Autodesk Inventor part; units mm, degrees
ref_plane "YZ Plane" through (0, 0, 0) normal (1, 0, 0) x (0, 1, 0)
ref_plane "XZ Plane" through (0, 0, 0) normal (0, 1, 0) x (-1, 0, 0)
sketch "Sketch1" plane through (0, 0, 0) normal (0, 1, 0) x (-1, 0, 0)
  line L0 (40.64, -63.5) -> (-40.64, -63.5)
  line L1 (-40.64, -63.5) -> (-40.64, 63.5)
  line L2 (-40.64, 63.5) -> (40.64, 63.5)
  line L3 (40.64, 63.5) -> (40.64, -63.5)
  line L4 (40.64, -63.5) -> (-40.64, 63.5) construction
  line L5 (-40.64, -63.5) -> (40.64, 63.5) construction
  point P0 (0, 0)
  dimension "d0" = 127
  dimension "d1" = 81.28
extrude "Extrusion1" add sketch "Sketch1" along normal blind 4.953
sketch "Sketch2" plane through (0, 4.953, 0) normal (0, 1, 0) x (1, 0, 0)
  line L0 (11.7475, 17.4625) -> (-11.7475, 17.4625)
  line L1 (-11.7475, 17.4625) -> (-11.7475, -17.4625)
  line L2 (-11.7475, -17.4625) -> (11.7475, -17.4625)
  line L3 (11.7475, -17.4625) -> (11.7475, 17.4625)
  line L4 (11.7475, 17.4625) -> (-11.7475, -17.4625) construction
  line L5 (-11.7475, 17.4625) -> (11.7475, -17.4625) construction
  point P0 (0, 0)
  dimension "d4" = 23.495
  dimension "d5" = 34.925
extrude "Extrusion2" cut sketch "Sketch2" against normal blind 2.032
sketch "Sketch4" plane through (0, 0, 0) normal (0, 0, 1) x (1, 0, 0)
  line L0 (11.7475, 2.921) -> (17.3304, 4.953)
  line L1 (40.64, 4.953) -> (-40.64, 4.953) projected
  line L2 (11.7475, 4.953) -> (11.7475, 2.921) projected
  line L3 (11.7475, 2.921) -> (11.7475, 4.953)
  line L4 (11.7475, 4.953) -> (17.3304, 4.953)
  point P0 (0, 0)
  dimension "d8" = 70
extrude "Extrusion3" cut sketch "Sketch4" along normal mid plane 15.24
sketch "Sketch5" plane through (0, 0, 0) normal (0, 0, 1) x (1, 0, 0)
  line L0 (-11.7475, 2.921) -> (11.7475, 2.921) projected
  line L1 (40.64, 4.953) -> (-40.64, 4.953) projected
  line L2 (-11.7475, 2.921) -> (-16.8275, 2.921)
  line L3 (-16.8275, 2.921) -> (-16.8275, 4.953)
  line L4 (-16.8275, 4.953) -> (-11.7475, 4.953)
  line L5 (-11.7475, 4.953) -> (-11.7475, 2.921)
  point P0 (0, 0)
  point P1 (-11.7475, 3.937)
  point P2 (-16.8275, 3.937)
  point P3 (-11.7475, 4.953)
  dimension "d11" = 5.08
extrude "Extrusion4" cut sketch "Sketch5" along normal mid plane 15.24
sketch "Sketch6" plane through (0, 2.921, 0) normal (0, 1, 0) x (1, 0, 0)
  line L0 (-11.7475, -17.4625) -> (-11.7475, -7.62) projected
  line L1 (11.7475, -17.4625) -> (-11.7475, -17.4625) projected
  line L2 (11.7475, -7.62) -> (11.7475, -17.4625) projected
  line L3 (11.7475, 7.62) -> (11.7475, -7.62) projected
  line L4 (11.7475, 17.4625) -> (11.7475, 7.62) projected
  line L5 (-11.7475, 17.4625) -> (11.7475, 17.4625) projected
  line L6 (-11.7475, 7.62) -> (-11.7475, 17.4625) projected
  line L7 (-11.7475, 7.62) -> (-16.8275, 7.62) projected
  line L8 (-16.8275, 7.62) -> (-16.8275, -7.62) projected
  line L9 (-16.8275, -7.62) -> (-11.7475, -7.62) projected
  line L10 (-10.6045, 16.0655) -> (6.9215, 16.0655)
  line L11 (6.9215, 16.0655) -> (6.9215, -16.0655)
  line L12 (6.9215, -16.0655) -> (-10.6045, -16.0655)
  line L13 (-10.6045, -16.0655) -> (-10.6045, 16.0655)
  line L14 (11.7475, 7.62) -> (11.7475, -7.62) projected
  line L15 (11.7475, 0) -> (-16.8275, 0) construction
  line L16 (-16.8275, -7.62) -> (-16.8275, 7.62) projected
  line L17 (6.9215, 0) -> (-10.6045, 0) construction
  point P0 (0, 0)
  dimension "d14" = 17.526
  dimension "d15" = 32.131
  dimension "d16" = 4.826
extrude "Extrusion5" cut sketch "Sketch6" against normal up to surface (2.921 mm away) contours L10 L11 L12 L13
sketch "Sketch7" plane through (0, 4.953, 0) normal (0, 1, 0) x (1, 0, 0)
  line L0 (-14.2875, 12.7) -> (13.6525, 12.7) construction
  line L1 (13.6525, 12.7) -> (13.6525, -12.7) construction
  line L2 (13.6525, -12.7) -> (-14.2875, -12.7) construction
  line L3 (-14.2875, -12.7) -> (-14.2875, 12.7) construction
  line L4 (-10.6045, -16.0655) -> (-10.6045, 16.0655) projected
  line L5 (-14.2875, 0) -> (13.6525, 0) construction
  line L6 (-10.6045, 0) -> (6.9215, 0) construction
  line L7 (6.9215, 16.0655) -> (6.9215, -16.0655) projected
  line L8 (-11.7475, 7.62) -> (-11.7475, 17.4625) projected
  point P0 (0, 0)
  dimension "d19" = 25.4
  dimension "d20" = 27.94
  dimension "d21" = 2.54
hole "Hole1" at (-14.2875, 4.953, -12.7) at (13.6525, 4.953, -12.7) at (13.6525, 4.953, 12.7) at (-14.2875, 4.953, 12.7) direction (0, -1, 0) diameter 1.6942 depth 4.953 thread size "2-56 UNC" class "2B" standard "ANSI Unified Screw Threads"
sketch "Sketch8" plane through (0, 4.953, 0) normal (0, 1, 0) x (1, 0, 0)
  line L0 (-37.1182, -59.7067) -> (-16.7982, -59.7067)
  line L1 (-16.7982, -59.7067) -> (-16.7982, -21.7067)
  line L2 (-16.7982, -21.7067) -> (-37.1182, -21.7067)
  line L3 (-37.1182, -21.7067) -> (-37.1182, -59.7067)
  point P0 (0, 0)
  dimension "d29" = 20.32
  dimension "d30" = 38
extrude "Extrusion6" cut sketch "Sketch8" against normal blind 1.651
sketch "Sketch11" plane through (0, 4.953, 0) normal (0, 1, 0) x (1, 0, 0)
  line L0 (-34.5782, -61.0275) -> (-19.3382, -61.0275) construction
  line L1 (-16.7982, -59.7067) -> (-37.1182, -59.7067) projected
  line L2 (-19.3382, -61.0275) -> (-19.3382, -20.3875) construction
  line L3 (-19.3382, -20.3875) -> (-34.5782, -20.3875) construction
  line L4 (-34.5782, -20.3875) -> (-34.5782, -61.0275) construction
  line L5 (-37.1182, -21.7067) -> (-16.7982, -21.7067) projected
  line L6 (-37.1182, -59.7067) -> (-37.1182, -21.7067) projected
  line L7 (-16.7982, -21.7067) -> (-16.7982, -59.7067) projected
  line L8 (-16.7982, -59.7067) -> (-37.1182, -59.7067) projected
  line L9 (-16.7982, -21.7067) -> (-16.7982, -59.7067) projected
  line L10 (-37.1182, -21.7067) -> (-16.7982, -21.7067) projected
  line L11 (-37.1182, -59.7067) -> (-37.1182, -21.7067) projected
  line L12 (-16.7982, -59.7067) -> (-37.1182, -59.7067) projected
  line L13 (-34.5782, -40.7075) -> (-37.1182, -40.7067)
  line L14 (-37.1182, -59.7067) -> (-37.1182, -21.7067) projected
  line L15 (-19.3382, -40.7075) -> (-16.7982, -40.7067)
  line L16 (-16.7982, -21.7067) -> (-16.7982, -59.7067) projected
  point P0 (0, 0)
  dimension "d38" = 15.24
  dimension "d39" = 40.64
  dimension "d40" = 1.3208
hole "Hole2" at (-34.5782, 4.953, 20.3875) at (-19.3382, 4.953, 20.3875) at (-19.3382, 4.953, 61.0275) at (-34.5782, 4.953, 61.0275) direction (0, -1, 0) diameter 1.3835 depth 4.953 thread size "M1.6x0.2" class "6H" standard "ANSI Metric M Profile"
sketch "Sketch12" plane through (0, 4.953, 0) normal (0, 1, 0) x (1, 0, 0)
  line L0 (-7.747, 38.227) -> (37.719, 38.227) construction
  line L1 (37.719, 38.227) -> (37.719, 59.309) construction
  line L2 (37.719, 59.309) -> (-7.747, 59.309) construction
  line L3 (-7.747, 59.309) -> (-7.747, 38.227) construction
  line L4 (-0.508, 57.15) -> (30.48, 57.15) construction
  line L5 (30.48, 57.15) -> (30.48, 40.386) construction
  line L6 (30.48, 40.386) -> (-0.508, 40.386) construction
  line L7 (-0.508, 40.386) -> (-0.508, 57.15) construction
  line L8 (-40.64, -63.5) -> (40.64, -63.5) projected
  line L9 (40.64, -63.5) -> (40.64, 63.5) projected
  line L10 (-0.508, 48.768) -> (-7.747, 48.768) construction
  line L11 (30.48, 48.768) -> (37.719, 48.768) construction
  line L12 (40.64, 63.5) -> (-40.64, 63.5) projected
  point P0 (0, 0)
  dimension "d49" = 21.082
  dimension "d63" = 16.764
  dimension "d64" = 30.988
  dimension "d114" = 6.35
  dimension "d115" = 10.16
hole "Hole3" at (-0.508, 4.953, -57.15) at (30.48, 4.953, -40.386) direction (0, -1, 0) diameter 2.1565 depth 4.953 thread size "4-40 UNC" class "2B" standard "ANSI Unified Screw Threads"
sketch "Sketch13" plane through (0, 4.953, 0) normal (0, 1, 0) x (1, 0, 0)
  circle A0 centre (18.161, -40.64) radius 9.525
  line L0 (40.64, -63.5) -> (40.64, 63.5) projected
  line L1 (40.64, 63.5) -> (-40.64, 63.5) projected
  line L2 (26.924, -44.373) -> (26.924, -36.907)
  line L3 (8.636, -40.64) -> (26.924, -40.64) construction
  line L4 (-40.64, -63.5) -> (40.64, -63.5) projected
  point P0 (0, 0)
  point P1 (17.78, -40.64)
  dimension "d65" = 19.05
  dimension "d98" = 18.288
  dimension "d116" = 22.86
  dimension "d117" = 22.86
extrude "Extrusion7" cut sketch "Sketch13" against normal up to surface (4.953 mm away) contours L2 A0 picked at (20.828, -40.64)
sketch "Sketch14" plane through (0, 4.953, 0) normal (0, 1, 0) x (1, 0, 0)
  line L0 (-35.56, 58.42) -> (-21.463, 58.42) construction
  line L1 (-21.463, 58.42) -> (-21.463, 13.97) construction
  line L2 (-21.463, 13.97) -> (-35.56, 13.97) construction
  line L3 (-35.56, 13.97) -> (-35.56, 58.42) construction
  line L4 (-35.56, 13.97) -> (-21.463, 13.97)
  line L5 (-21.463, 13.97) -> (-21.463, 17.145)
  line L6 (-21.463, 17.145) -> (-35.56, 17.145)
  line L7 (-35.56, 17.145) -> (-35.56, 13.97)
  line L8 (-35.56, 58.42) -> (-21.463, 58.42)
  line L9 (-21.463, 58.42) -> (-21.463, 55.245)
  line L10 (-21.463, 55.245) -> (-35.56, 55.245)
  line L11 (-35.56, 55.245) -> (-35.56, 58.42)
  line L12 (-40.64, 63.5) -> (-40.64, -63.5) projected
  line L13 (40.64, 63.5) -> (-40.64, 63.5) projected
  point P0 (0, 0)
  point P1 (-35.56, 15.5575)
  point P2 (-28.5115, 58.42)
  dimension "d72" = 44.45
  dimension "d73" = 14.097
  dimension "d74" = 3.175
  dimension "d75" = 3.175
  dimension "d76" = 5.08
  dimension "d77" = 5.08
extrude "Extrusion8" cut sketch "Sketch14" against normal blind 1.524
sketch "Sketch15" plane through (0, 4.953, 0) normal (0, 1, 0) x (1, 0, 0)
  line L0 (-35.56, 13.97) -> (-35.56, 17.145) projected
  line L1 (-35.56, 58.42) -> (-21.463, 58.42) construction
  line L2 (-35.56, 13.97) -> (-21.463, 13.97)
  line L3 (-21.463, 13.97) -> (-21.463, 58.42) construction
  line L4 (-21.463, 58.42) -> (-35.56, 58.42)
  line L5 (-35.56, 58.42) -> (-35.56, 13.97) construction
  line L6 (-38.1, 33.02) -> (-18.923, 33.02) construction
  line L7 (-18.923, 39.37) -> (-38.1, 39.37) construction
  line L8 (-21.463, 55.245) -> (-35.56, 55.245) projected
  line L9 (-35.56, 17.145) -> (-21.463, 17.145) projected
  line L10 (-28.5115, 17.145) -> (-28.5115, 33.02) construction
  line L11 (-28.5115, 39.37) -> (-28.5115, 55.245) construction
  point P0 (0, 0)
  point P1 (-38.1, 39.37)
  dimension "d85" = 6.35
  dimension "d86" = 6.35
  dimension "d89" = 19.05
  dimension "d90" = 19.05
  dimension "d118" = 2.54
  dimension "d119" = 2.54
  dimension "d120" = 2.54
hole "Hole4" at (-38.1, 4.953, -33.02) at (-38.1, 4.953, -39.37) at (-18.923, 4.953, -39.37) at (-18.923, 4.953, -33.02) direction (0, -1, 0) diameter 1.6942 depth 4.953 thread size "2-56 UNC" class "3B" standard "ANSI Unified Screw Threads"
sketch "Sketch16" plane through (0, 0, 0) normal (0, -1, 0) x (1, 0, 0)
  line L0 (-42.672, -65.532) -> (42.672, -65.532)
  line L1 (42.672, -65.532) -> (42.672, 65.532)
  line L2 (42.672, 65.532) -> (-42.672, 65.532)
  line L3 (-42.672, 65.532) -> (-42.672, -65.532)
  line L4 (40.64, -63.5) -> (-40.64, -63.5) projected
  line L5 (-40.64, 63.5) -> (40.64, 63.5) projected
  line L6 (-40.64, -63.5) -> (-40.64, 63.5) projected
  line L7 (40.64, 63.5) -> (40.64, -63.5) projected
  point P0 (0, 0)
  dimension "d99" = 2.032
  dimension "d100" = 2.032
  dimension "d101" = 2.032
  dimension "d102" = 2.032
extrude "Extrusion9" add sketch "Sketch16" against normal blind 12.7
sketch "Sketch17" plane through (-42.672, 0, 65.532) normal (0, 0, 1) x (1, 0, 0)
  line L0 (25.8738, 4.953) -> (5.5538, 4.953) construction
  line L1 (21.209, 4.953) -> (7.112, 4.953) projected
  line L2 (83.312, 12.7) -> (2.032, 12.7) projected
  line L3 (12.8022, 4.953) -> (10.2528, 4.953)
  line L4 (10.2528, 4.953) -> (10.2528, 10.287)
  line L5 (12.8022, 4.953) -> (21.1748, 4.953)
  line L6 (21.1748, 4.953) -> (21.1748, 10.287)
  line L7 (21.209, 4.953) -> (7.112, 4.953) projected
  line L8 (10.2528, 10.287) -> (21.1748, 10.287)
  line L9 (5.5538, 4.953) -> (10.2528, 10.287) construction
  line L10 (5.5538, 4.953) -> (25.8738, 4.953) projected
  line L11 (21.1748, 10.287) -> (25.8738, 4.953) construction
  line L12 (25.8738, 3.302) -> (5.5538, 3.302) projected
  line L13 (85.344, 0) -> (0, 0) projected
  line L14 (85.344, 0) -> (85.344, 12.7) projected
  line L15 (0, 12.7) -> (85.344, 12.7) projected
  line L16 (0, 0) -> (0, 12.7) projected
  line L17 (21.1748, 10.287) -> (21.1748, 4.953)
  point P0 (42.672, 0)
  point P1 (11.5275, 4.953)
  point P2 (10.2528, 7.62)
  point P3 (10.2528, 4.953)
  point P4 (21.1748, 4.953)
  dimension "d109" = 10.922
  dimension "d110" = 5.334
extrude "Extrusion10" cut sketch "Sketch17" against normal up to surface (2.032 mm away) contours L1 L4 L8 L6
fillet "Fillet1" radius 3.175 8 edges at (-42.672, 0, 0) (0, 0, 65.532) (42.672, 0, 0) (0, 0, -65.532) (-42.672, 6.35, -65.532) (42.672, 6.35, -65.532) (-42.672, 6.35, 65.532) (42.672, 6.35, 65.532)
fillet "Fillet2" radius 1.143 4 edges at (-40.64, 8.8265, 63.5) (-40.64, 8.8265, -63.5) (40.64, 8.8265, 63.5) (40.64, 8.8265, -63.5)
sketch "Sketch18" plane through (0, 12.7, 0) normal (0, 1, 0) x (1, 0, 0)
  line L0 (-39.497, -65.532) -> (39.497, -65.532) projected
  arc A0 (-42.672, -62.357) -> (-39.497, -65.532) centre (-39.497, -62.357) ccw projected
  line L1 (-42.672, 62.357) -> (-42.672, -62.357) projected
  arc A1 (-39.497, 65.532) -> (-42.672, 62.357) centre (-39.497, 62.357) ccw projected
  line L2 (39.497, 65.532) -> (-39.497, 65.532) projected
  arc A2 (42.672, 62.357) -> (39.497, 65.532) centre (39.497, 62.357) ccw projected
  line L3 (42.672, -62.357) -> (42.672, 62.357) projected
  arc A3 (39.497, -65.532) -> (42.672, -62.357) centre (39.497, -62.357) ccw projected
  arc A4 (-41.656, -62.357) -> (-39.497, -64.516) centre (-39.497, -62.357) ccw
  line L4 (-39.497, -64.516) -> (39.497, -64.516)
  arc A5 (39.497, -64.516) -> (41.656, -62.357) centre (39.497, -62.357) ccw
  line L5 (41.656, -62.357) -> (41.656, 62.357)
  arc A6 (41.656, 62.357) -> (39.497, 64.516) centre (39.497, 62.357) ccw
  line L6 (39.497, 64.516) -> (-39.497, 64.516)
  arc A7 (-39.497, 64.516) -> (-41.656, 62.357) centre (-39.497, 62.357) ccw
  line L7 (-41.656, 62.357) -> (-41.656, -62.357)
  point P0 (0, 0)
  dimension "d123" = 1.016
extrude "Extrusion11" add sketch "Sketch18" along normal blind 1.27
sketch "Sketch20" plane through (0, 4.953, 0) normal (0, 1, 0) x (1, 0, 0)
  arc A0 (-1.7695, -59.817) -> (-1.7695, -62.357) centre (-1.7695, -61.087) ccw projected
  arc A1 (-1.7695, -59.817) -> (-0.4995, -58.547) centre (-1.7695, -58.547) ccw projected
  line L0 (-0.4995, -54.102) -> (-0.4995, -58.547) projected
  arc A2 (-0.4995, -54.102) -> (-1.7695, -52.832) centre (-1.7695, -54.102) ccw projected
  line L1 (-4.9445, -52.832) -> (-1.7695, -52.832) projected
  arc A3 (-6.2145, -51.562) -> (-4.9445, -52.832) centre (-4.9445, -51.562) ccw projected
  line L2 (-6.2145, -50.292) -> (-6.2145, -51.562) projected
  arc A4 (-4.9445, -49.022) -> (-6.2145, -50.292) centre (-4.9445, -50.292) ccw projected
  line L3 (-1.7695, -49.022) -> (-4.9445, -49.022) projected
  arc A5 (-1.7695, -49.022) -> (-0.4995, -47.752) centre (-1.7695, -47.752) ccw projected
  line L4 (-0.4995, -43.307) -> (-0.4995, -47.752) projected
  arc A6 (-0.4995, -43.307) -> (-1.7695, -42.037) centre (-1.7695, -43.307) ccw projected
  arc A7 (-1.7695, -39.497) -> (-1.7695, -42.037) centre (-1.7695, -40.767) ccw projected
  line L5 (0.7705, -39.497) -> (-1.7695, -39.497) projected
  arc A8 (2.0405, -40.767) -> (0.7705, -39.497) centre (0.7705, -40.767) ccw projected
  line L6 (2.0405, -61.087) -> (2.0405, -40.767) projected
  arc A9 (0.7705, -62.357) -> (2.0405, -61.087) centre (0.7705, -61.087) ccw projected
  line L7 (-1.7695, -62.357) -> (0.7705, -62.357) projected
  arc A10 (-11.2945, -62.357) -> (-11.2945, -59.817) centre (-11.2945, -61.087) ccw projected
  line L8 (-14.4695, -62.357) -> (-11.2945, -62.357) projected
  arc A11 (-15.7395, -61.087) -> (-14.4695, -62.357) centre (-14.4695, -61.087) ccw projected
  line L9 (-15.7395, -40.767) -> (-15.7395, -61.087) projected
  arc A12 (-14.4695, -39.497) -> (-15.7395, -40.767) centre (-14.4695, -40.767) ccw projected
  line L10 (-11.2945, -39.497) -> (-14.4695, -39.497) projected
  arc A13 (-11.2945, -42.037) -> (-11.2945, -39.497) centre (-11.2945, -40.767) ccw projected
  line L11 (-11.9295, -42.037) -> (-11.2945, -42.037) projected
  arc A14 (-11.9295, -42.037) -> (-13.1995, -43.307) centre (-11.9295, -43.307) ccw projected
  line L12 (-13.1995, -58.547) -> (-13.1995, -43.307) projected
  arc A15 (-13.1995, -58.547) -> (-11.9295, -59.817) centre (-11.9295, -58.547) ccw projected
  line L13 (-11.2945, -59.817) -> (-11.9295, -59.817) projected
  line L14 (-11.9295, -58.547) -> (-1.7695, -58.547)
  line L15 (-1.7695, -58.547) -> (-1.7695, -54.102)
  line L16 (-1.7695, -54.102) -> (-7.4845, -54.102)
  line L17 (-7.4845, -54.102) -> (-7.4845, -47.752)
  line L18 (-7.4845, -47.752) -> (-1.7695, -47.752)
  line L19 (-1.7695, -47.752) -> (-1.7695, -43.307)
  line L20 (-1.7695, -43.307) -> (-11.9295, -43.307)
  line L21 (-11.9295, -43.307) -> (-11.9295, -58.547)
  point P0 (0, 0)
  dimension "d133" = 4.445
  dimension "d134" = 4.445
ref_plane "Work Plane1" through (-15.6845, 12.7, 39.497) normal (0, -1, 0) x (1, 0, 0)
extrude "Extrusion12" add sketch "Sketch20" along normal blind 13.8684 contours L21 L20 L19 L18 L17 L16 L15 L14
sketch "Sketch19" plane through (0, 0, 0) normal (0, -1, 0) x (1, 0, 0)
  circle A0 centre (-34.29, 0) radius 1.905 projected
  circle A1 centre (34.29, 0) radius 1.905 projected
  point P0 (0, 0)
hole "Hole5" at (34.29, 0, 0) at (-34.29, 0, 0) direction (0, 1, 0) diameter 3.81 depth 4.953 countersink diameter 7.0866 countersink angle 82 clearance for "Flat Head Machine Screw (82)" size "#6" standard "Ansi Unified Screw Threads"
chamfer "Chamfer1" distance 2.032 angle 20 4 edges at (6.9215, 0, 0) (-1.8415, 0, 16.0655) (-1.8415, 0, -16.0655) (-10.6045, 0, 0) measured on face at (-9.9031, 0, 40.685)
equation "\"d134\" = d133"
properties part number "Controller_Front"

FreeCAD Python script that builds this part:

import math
import FreeCAD as App
import Part
import Sketcher
Q = App.Units.Quantity


def edges_at(feature, points):
    """Names of the edges that pass closest to the given points."""
    edges = feature.Shape.Edges
    near = lambda p: min(range(len(edges)), key=lambda i: edges[i].distToShape(Part.Vertex(*p))[0])
    return sorted({f"Edge{near(p) + 1}" for p in points})


def add_polygon(sketch, points):
    """Adds a closed chain of lines whose ends are joined by coincident constraints."""
    first, n = sketch.GeometryCount, len(points)
    for a, b in zip(points, points[1:] + points[:1]):
        sketch.addGeometry(Part.LineSegment(App.Vector(*a, 0), App.Vector(*b, 0)), False)
    for i in range(n):
        sketch.addConstraint(Sketcher.Constraint("Coincident", first + i, 2, first + (i + 1) % n, 1))

doc = App.newDocument("Part")
body = doc.addObject("PartDesign::Body", "Body")

# Sketch on XZ plane
sketch1 = doc.addObject("Sketcher::SketchObject", "Sketch")
body.addObject(sketch1)
sketch1.AttachmentSupport = (doc.XZ_Plane, [""])
sketch1.MapMode = "FlatFace"
add_polygon(sketch1, [(41, -64), (-41, -64), (-41, 64), (41, 64)])  # lines 0-3
sketch1.addConstraint(Sketcher.Constraint("Horizontal", 0))
sketch1.addConstraint(Sketcher.Constraint("Vertical", 1))
sketch1.addConstraint(Sketcher.Constraint("Horizontal", 2))
sketch1.addConstraint(Sketcher.Constraint("Vertical", 3))
sketch1.addConstraint(Sketcher.Constraint("Symmetric", 0, 2, 2, 2, -1, 1))
sketch1.addConstraint(Sketcher.Constraint("DistanceY", 1, 1, 1, 2, Q("5 in")))
sketch1.addConstraint(Sketcher.Constraint("DistanceX", 0, 2, 0, 1, Q("3.2 in")))
pad1 = doc.addObject("PartDesign::Pad", "Pad")
body.addObject(pad1)
pad1.Profile = sketch1
pad1.Length = Q("0.195 in")
pad1.Reversed = True

# Sketch on XZ plane
sketch2 = doc.addObject("Sketcher::SketchObject", "Sketch001")
body.addObject(sketch2)
sketch2.AttachmentSupport = (doc.XZ_Plane, [""])
sketch2.MapMode = "FlatFace"
sketch2.AttachmentOffset = App.Placement(App.Vector(0, 0, -0.195 * 25.4), App.Rotation())
add_polygon(sketch2, [(12, 17), (12, -17), (-12, -17), (-12, 17)])  # lines 0-3
sketch2.addConstraint(Sketcher.Constraint("Vertical", 0))
sketch2.addConstraint(Sketcher.Constraint("Horizontal", 1))
sketch2.addConstraint(Sketcher.Constraint("Vertical", 2))
sketch2.addConstraint(Sketcher.Constraint("Horizontal", 3))
sketch2.addConstraint(Sketcher.Constraint("Symmetric", 0, 2, 2, 2, -1, 1))
sketch2.addConstraint(Sketcher.Constraint("DistanceX", 1, 2, 1, 1, Q("0.925 in")))
sketch2.addConstraint(Sketcher.Constraint("DistanceY", 0, 2, 0, 1, Q("1.375 in")))
pocket1 = doc.addObject("PartDesign::Pocket", "Pocket")
body.addObject(pocket1)
pocket1.Profile = sketch2
pocket1.Length = Q("0.08 in")
pocket1.Reversed = True

# Sketch on XY plane
sketch3 = doc.addObject("Sketcher::SketchObject", "Sketch002")
body.addObject(sketch3)
sketch3.AttachmentSupport = (doc.XY_Plane, [""])
sketch3.MapMode = "FlatFace"
add_polygon(sketch3, [(11.7, 5), (11.7, 2.9), (17.3, 5)])  # lines 0-2
sketch3.addConstraint(Sketcher.Constraint("Vertical", 0))
sketch3.addConstraint(Sketcher.Constraint("Horizontal", 2))
sketch3.addConstraint(Sketcher.Constraint("Angle", 1, Q("20 deg")))
sketch3.addConstraint(Sketcher.Constraint("DistanceY", 0, 2, 0, 1, Q("0.08 in")))
sketch3.addConstraint(Sketcher.Constraint("DistanceY", -1, 1, 0, 2, Q("0.115 in")))
sketch3.addConstraint(Sketcher.Constraint("DistanceX", -1, 1, 0, 2, Q("0.4625 in")))
pocket2 = doc.addObject("PartDesign::Pocket", "Pocket001")
body.addObject(pocket2)
pocket2.Profile = sketch3
pocket2.Length = Q("0.6 in")
pocket2.Midplane = True

# Sketch on XY plane
sketch4 = doc.addObject("Sketcher::SketchObject", "Sketch003")
body.addObject(sketch4)
sketch4.AttachmentSupport = (doc.XY_Plane, [""])
sketch4.MapMode = "FlatFace"
add_polygon(sketch4, [(-11.7, 2.9), (-11.7, 5), (-16.8, 5), (-16.8, 2.9)])  # lines 0-3
sketch4.addConstraint(Sketcher.Constraint("Vertical", 0))
sketch4.addConstraint(Sketcher.Constraint("Horizontal", 1))
sketch4.addConstraint(Sketcher.Constraint("Vertical", 2))
sketch4.addConstraint(Sketcher.Constraint("Horizontal", 3))
sketch4.addConstraint(Sketcher.Constraint("DistanceX", 1, 2, 1, 1, Q("0.2 in")))
sketch4.addConstraint(Sketcher.Constraint("DistanceY", 0, 1, 0, 2, Q("0.08 in")))
sketch4.addConstraint(Sketcher.Constraint("DistanceY", -1, 1, 0, 2, Q("0.195 in")))
sketch4.addConstraint(Sketcher.Constraint("DistanceX", 0, 2, -1, 1, Q("0.4625 in")))
pocket3 = doc.addObject("PartDesign::Pocket", "Pocket002")
body.addObject(pocket3)
pocket3.Profile = sketch4
pocket3.Length = Q("0.6 in")
pocket3.Midplane = True

# Sketch on XZ plane
sketch5 = doc.addObject("Sketcher::SketchObject", "Sketch004")
body.addObject(sketch5)
sketch5.AttachmentSupport = (doc.XZ_Plane, [""])
sketch5.MapMode = "FlatFace"
sketch5.AttachmentOffset = App.Placement(App.Vector(0, 0, -0.115 * 25.4), App.Rotation())
add_polygon(sketch5, [(7, -16), (-11, -16), (-11, 16), (7, 16)])  # lines 0-3
sketch5.addConstraint(Sketcher.Constraint("Horizontal", 0))
sketch5.addConstraint(Sketcher.Constraint("Vertical", 1))
sketch5.addConstraint(Sketcher.Constraint("Horizontal", 2))
sketch5.addConstraint(Sketcher.Constraint("Vertical", 3))
sketch5.addConstraint(Sketcher.Constraint("DistanceX", 0, 2, 0, 1, Q("0.69 in")))
sketch5.addConstraint(Sketcher.Constraint("DistanceY", 1, 1, 1, 2, Q("1.265 in")))
sketch5.addConstraint(Sketcher.Constraint("DistanceX", 0, 2, -1, 1, Q("0.4175 in")))
sketch5.addConstraint(Sketcher.Constraint("DistanceY", 0, 2, -1, 1, Q("0.6325 in")))
pocket4 = doc.addObject("PartDesign::Pocket", "Pocket003")
body.addObject(pocket4)
pocket4.Profile = sketch5
pocket4.Length = Q("0.115 in")
pocket4.Reversed = True

# Sketch on XZ plane
sketch6 = doc.addObject("Sketcher::SketchObject", "Sketch005")
body.addObject(sketch6)
sketch6.AttachmentSupport = (doc.XZ_Plane, [""])
sketch6.MapMode = "FlatFace"
sketch6.AttachmentOffset = App.Placement(App.Vector(0, 0, -0.195 * 25.4), App.Rotation())
sketch6.addGeometry(Part.Circle(App.Vector(-14.3, -12.7, 0), App.Vector(0, 0, 1), 0.8), False)
sketch6.addGeometry(Part.Circle(App.Vector(13.7, -12.7, 0), App.Vector(0, 0, 1), 0.8), False)
sketch6.addGeometry(Part.Circle(App.Vector(13.7, 12.7, 0), App.Vector(0, 0, 1), 0.8), False)
sketch6.addGeometry(Part.Circle(App.Vector(-14.3, 12.7, 0), App.Vector(0, 0, 1), 0.8), False)
sketch6.addConstraint(Sketcher.Constraint("Equal", 0, 1))
sketch6.addConstraint(Sketcher.Constraint("Equal", 1, 2))
sketch6.addConstraint(Sketcher.Constraint("Equal", 2, 3))
sketch6.addConstraint(Sketcher.Constraint("Symmetric", 1, 3, 2, 3, -1))
sketch6.addConstraint(Sketcher.Constraint("Symmetric", 0, 3, 3, 3, -1))
sketch6.addConstraint(Sketcher.Constraint("Horizontal", 0, 3, 1, 3))
sketch6.addConstraint(Sketcher.Constraint("DistanceY", 1, 3, 2, 3, Q("1 in")))
sketch6.addConstraint(Sketcher.Constraint("Diameter", 0, Q("0.0667 in")))
sketch6.addConstraint(Sketcher.Constraint("DistanceX", 0, 3, 1, 3, Q("1.1 in")))
sketch6.addConstraint(Sketcher.Constraint("DistanceX", 0, 3, -1, 1, Q("0.5625 in")))
doc.recompute()
hole = doc.addObject("PartDesign::Hole", "Hole")
body.addObject(hole)
hole.Profile = sketch6
hole.ThreadType = "None"
hole.Diameter = Q("0.0667008 in")
hole.DepthType = "Dimension"
hole.Depth = Q("0.195 in")
hole.DrillPoint = "Flat"
hole.Reversed = True

# Sketch on XZ plane
sketch7 = doc.addObject("Sketcher::SketchObject", "Sketch006")
body.addObject(sketch7)
sketch7.AttachmentSupport = (doc.XZ_Plane, [""])
sketch7.MapMode = "FlatFace"
sketch7.AttachmentOffset = App.Placement(App.Vector(0, 0, -0.195 * 25.4), App.Rotation())
add_polygon(sketch7, [(-37, 22), (-37, 60), (-17, 60), (-17, 22)])  # lines 0-3
sketch7.addConstraint(Sketcher.Constraint("Vertical", 0))
sketch7.addConstraint(Sketcher.Constraint("Horizontal", 1))
sketch7.addConstraint(Sketcher.Constraint("Vertical", 2))
sketch7.addConstraint(Sketcher.Constraint("Horizontal", 3))
sketch7.addConstraint(Sketcher.Constraint("DistanceX", 1, 1, 1, 2, Q("0.8 in")))
sketch7.addConstraint(Sketcher.Constraint("DistanceY", 0, 1, 0, 2, 38.0))
sketch7.addConstraint(Sketcher.Constraint("DistanceY", -1, 1, 2, 2, Q("0.8546 in")))
sketch7.addConstraint(Sketcher.Constraint("DistanceX", 0, 2, -1, 1, 37.1182))
pocket5 = doc.addObject("PartDesign::Pocket", "Pocket004")
body.addObject(pocket5)
pocket5.Profile = sketch7
pocket5.Length = Q("0.065 in")
pocket5.Reversed = True

# Sketch on XZ plane
sketch8 = doc.addObject("Sketcher::SketchObject", "Sketch007")
body.addObject(sketch8)
sketch8.AttachmentSupport = (doc.XZ_Plane, [""])
sketch8.MapMode = "FlatFace"
sketch8.AttachmentOffset = App.Placement(App.Vector(0, 0, -0.195 * 25.4), App.Rotation())
sketch8.addGeometry(Part.Circle(App.Vector(-34.6, 20.4, 0), App.Vector(0, 0, 1), 0.7), False)
sketch8.addGeometry(Part.Circle(App.Vector(-19.3, 20.4, 0), App.Vector(0, 0, 1), 0.7), False)
sketch8.addGeometry(Part.Circle(App.Vector(-19.3, 61, 0), App.Vector(0, 0, 1), 0.7), False)
sketch8.addGeometry(Part.Circle(App.Vector(-34.6, 61, 0), App.Vector(0, 0, 1), 0.7), False)
sketch8.addConstraint(Sketcher.Constraint("Equal", 0, 1))
sketch8.addConstraint(Sketcher.Constraint("Equal", 1, 2))
sketch8.addConstraint(Sketcher.Constraint("Equal", 2, 3))
sketch8.addConstraint(Sketcher.Constraint("Horizontal", 0, 3, 1, 3))
sketch8.addConstraint(Sketcher.Constraint("Horizontal", 2, 3, 3, 3))
sketch8.addConstraint(Sketcher.Constraint("Vertical", 1, 3, 2, 3))
sketch8.addConstraint(Sketcher.Constraint("Vertical", 0, 3, 3, 3))
sketch8.addConstraint(Sketcher.Constraint("DistanceX", 0, 3, 1, 3, Q("0.6 in")))
sketch8.addConstraint(Sketcher.Constraint("DistanceY", 1, 3, 2, 3, Q("1.6 in")))
sketch8.addConstraint(Sketcher.Constraint("Diameter", 0, 1.3835))
sketch8.addConstraint(Sketcher.Constraint("DistanceX", 0, 3, -1, 1, 34.5782))
sketch8.addConstraint(Sketcher.Constraint("DistanceY", -1, 1, 0, 3, 20.3875))
doc.recompute()
hole2 = doc.addObject("PartDesign::Hole", "Hole001")
body.addObject(hole2)
hole2.Profile = sketch8
hole2.ThreadType = "None"
hole2.Diameter = 1.3835
hole2.DepthType = "Dimension"
hole2.Depth = Q("0.195 in")
hole2.DrillPoint = "Flat"
hole2.Reversed = True

# Sketch on XZ plane
sketch9 = doc.addObject("Sketcher::SketchObject", "Sketch008")
body.addObject(sketch9)
sketch9.AttachmentSupport = (doc.XZ_Plane, [""])
sketch9.MapMode = "FlatFace"
sketch9.AttachmentOffset = App.Placement(App.Vector(0, 0, -0.195 * 25.4), App.Rotation())
sketch9.addGeometry(Part.Circle(App.Vector(-0.5, -57.1, 0), App.Vector(0, 0, 1), 1.1), False)
sketch9.addGeometry(Part.Circle(App.Vector(30.5, -40.4, 0), App.Vector(0, 0, 1), 1.1), False)
sketch9.addConstraint(Sketcher.Constraint("Equal", 0, 1))
sketch9.addConstraint(Sketcher.Constraint("Diameter", 0, Q("0.0849 in")))
sketch9.addConstraint(Sketcher.Constraint("DistanceX", -1, 1, 1, 3, Q("1.2 in")))
sketch9.addConstraint(Sketcher.Constraint("DistanceX", 0, 3, -1, 1, Q("0.02 in")))
sketch9.addConstraint(Sketcher.Constraint("DistanceY", 0, 3, -1, 1, Q("2.25 in")))
sketch9.addConstraint(Sketcher.Constraint("DistanceY", 1, 3, -1, 1, Q("1.59 in")))
doc.recompute()
hole3 = doc.addObject("PartDesign::Hole", "Hole002")
body.addObject(hole3)
hole3.Profile = sketch9
hole3.ThreadType = "None"
hole3.Diameter = Q("0.0849016 in")
hole3.DepthType = "Dimension"
hole3.Depth = Q("0.195 in")
hole3.DrillPoint = "Flat"
hole3.Reversed = True

# Sketch on XZ plane
sketch10 = doc.addObject("Sketcher::SketchObject", "Sketch009")
body.addObject(sketch10)
sketch10.AttachmentSupport = (doc.XZ_Plane, [""])
sketch10.MapMode = "FlatFace"
sketch10.AttachmentOffset = App.Placement(App.Vector(0, 0, -0.195 * 25.4), App.Rotation())
sketch10.addGeometry(Part.LineSegment(App.Vector(27, 44, 0), App.Vector(27, 37, 0)), False)
sketch10.addGeometry(Part.ArcOfCircle(Part.Circle(App.Vector(18, 41, 0), App.Vector(0, 0, 1), 10), math.radians(23), math.radians(337)), False)
sketch10.addConstraint(Sketcher.Constraint("Coincident", 0, 1, 1, 1))
sketch10.addConstraint(Sketcher.Constraint("Coincident", 1, 2, 0, 2))
sketch10.addConstraint(Sketcher.Constraint("Vertical", 0))
sketch10.addConstraint(Sketcher.Constraint("Radius", 1, Q("0.375 in")))
sketch10.addConstraint(Sketcher.Constraint("DistanceY", -1, 1, 1, 3, Q("1.6 in")))
sketch10.addConstraint(Sketcher.Constraint("DistanceX", -1, 1, 0, 1, Q("1.06 in")))
sketch10.addConstraint(Sketcher.Constraint("DistanceX", -1, 1, 1, 3, Q("0.715 in")))
pocket6 = doc.addObject("PartDesign::Pocket", "Pocket005")
body.addObject(pocket6)
pocket6.Profile = sketch10
pocket6.Length = Q("0.195 in")
pocket6.Reversed = True

# Sketch on XZ plane
sketch11 = doc.addObject("Sketcher::SketchObject", "Sketch010")
body.addObject(sketch11)
sketch11.AttachmentSupport = (doc.XZ_Plane, [""])
sketch11.MapMode = "FlatFace"
sketch11.AttachmentOffset = App.Placement(App.Vector(0, 0, -0.195 * 25.4), App.Rotation())
add_polygon(sketch11, [(-35.6, -17.1), (-35.6, -14), (-21.5, -14), (-21.5, -17.1)])  # lines 0-3
add_polygon(sketch11, [(-21.5, -58.4), (-35.6, -58.4), (-35.6, -55.2), (-21.5, -55.2)])  # lines 4-7
sketch11.addConstraint(Sketcher.Constraint("Vertical", 0))
sketch11.addConstraint(Sketcher.Constraint("Horizontal", 1))
sketch11.addConstraint(Sketcher.Constraint("Vertical", 2))
sketch11.addConstraint(Sketcher.Constraint("Horizontal", 3))
sketch11.addConstraint(Sketcher.Constraint("Horizontal", 4))
sketch11.addConstraint(Sketcher.Constraint("Vertical", 5))
sketch11.addConstraint(Sketcher.Constraint("Horizontal", 6))
sketch11.addConstraint(Sketcher.Constraint("Vertical", 7))
sketch11.addConstraint(Sketcher.Constraint("Vertical", 3, 2, 4, 2))
sketch11.addConstraint(Sketcher.Constraint("Vertical", 2, 2, 6, 2))
sketch11.addConstraint(Sketcher.Constraint("Equal", 2, 5))
sketch11.addConstraint(Sketcher.Constraint("DistanceX", 1, 1, 1, 2, Q("0.555 in")))
sketch11.addConstraint(Sketcher.Constraint("DistanceY", 0, 1, 0, 2, Q("0.125 in")))
sketch11.addConstraint(Sketcher.Constraint("DistanceY", 4, 2, 0, 2, Q("1.75 in")))
sketch11.addConstraint(Sketcher.Constraint("DistanceX", 0, 2, -1, 1, Q("1.4 in")))
sketch11.addConstraint(Sketcher.Constraint("DistanceY", 4, 2, -1, 1, Q("2.3 in")))
pocket7 = doc.addObject("PartDesign::Pocket", "Pocket006")
body.addObject(pocket7)
pocket7.Profile = sketch11
pocket7.Length = Q("0.06 in")
pocket7.Reversed = True

# Sketch on XZ plane
sketch12 = doc.addObject("Sketcher::SketchObject", "Sketch011")
body.addObject(sketch12)
sketch12.AttachmentSupport = (doc.XZ_Plane, [""])
sketch12.MapMode = "FlatFace"
sketch12.AttachmentOffset = App.Placement(App.Vector(0, 0, -0.195 * 25.4), App.Rotation())
sketch12.addGeometry(Part.Circle(App.Vector(-38.1, -33, 0), App.Vector(0, 0, 1), 0.8), False)
sketch12.addGeometry(Part.Circle(App.Vector(-38.1, -39.4, 0), App.Vector(0, 0, 1), 0.8), False)
sketch12.addGeometry(Part.Circle(App.Vector(-18.9, -39.4, 0), App.Vector(0, 0, 1), 0.8), False)
sketch12.addGeometry(Part.Circle(App.Vector(-18.9, -33, 0), App.Vector(0, 0, 1), 0.8), False)
sketch12.addConstraint(Sketcher.Constraint("Equal", 0, 1))
sketch12.addConstraint(Sketcher.Constraint("Equal", 1, 2))
sketch12.addConstraint(Sketcher.Constraint("Equal", 2, 3))
sketch12.addConstraint(Sketcher.Constraint("Horizontal", 1, 3, 2, 3))
sketch12.addConstraint(Sketcher.Constraint("Horizontal", 0, 3, 3, 3))
sketch12.addConstraint(Sketcher.Constraint("Vertical", 0, 3, 1, 3))
sketch12.addConstraint(Sketcher.Constraint("Vertical", 2, 3, 3, 3))
sketch12.addConstraint(Sketcher.Constraint("Diameter", 0, Q("0.0667 in")))
sketch12.addConstraint(Sketcher.Constraint("DistanceX", 0, 3, -1, 1, Q("1.5 in")))
sketch12.addConstraint(Sketcher.Constraint("DistanceY", 0, 3, -1, 1, Q("1.3 in")))
sketch12.addConstraint(Sketcher.Constraint("DistanceY", 1, 3, -1, 1, Q("1.55 in")))
sketch12.addConstraint(Sketcher.Constraint("DistanceX", 2, 3, -1, 1, Q("0.745 in")))
doc.recompute()
hole4 = doc.addObject("PartDesign::Hole", "Hole003")
body.addObject(hole4)
hole4.Profile = sketch12
hole4.ThreadType = "None"
hole4.Diameter = Q("0.0667008 in")
hole4.DepthType = "Dimension"
hole4.Depth = Q("0.195 in")
hole4.DrillPoint = "Flat"
hole4.Reversed = True

# Sketch on XZ plane
sketch13 = doc.addObject("Sketcher::SketchObject", "Sketch012")
body.addObject(sketch13)
sketch13.AttachmentSupport = (doc.XZ_Plane, [""])
sketch13.MapMode = "FlatFace"
add_polygon(sketch13, [(-43, 66), (-43, -66), (43, -66), (43, 66)])  # lines 0-3
add_polygon(sketch13, [(41, 64), (41, -64), (-41, -64), (-41, 64)])  # lines 4-7
sketch13.addConstraint(Sketcher.Constraint("Vertical", 0))
sketch13.addConstraint(Sketcher.Constraint("Horizontal", 1))
sketch13.addConstraint(Sketcher.Constraint("Vertical", 2))
sketch13.addConstraint(Sketcher.Constraint("Horizontal", 3))
sketch13.addConstraint(Sketcher.Constraint("Vertical", 4))
sketch13.addConstraint(Sketcher.Constraint("Horizontal", 5))
sketch13.addConstraint(Sketcher.Constraint("Vertical", 6))
sketch13.addConstraint(Sketcher.Constraint("Horizontal", 7))
sketch13.addConstraint(Sketcher.Constraint("Symmetric", 0, 2, 2, 2, -1, 1))
sketch13.addConstraint(Sketcher.Constraint("Symmetric", 4, 2, 6, 2, -1, 1))
sketch13.addConstraint(Sketcher.Constraint("DistanceY", 4, 2, 4, 1, Q("5 in")))
sketch13.addConstraint(Sketcher.Constraint("DistanceX", 4, 2, 1, 2, Q("0.08 in")))
sketch13.addConstraint(Sketcher.Constraint("DistanceY", 1, 2, 4, 2, Q("0.08 in")))
sketch13.addConstraint(Sketcher.Constraint("DistanceX", 5, 2, 5, 1, Q("3.2 in")))
pad2 = doc.addObject("PartDesign::Pad", "Pad001")
body.addObject(pad2)
pad2.Profile = sketch13
pad2.Length = Q("0.5 in")
pad2.Reversed = True

# Sketch on XY plane
sketch14 = doc.addObject("Sketcher::SketchObject", "Sketch013")
body.addObject(sketch14)
sketch14.AttachmentSupport = (doc.XY_Plane, [""])
sketch14.MapMode = "FlatFace"
sketch14.AttachmentOffset = App.Placement(App.Vector(0, 0, 2.58 * 25.4), App.Rotation())
add_polygon(sketch14, [(-32, 5), (-21, 5), (-21, 10), (-32, 10)])  # lines 0-3
sketch14.addConstraint(Sketcher.Constraint("Horizontal", 0))
sketch14.addConstraint(Sketcher.Constraint("Vertical", 1))
sketch14.addConstraint(Sketcher.Constraint("Horizontal", 2))
sketch14.addConstraint(Sketcher.Constraint("Vertical", 3))
sketch14.addConstraint(Sketcher.Constraint("DistanceX", 0, 1, 0, 2, Q("0.43 in")))
sketch14.addConstraint(Sketcher.Constraint("DistanceY", 1, 1, 1, 2, Q("0.21 in")))
sketch14.addConstraint(Sketcher.Constraint("DistanceY", -1, 1, 0, 2, Q("0.195 in")))
sketch14.addConstraint(Sketcher.Constraint("DistanceX", 0, 2, -1, 1, 21.4972))
pocket8 = doc.addObject("PartDesign::Pocket", "Pocket007")
body.addObject(pocket8)
pocket8.Profile = sketch14
pocket8.Length = Q("0.08 in")
doc.recompute()

fillet = doc.addObject("PartDesign::Fillet", "Fillet")
body.addObject(fillet)
fillet.Base = (pocket8, edges_at(pocket8, [
    (-42.672, 0, 0),
    (0, 0, 65.532),
    (42.672, 0, 0),
    (0, 0, -65.532),
    (-42.672, 6.35, -65.532),
    (42.672, 6.35, -65.532),
    (-42.672, 6.35, 65.532),
    (42.672, 6.35, 65.532),
]))
fillet.Radius = Q("0.125 in")
doc.recompute()

fillet2 = doc.addObject("PartDesign::Fillet", "Fillet001")
body.addObject(fillet2)
fillet2.Base = (fillet, edges_at(fillet, [
    (-40.64, 8.826, 63.5),
    (-40.64, 8.826, -63.5),
    (40.64, 8.826, 63.5),
    (40.64, 8.826, -63.5),
]))
fillet2.Radius = Q("0.045 in")

# Sketch on XZ plane
sketch15 = doc.addObject("Sketcher::SketchObject", "Sketch014")
body.addObject(sketch15)
sketch15.AttachmentSupport = (doc.XZ_Plane, [""])
sketch15.MapMode = "FlatFace"
sketch15.AttachmentOffset = App.Placement(App.Vector(0, 0, -0.5 * 25.4), App.Rotation())
sketch15.addGeometry(Part.ArcOfCircle(Part.Circle(App.Vector(-39.5, 62.4, 0), App.Vector(0, 0, 1), 3.2), math.radians(90), math.radians(180)), False)
sketch15.addGeometry(Part.LineSegment(App.Vector(-39.5, 65.5, 0), App.Vector(39.5, 65.5, 0)), False)
sketch15.addGeometry(Part.ArcOfCircle(Part.Circle(App.Vector(39.5, 62.4, 0), App.Vector(0, 0, 1), 3.2), math.radians(0), math.radians(90)), False)
sketch15.addGeometry(Part.LineSegment(App.Vector(42.7, 62.4, 0), App.Vector(42.7, -62.4, 0)), False)
sketch15.addGeometry(Part.ArcOfCircle(Part.Circle(App.Vector(39.5, -62.4, 0), App.Vector(0, 0, 1), 3.2), math.radians(-90), math.radians(0)), False)
sketch15.addGeometry(Part.LineSegment(App.Vector(39.5, -65.5, 0), App.Vector(-39.5, -65.5, 0)), False)
sketch15.addGeometry(Part.ArcOfCircle(Part.Circle(App.Vector(-39.5, -62.4, 0), App.Vector(0, 0, 1), 3.2), math.radians(180), math.radians(270)), False)
sketch15.addGeometry(Part.LineSegment(App.Vector(-42.7, -62.4, 0), App.Vector(-42.7, 62.4, 0)), False)
sketch15.addGeometry(Part.ArcOfCircle(Part.Circle(App.Vector(-39.5, 62.4, 0), App.Vector(0, 0, 1), 2.2), math.radians(90), math.radians(180)), False)
sketch15.addGeometry(Part.LineSegment(App.Vector(-41.7, 62.4, 0), App.Vector(-41.7, -62.4, 0)), False)
sketch15.addGeometry(Part.ArcOfCircle(Part.Circle(App.Vector(-39.5, -62.4, 0), App.Vector(0, 0, 1), 2.2), math.radians(180), math.radians(270)), False)
sketch15.addGeometry(Part.LineSegment(App.Vector(-39.5, -64.5, 0), App.Vector(39.5, -64.5, 0)), False)
sketch15.addGeometry(Part.ArcOfCircle(Part.Circle(App.Vector(39.5, -62.4, 0), App.Vector(0, 0, 1), 2.2), math.radians(-90), math.radians(0)), False)
sketch15.addGeometry(Part.LineSegment(App.Vector(41.7, -62.4, 0), App.Vector(41.7, 62.4, 0)), False)
sketch15.addGeometry(Part.ArcOfCircle(Part.Circle(App.Vector(39.5, 62.4, 0), App.Vector(0, 0, 1), 2.2), math.radians(0), math.radians(90)), False)
sketch15.addGeometry(Part.LineSegment(App.Vector(39.5, 64.5, 0), App.Vector(-39.5, 64.5, 0)), False)
sketch15.addConstraint(Sketcher.Constraint("Tangent", 0, 1, 1, 1))
sketch15.addConstraint(Sketcher.Constraint("Tangent", 1, 2, 2, 2))
sketch15.addConstraint(Sketcher.Constraint("Tangent", 2, 1, 3, 1))
sketch15.addConstraint(Sketcher.Constraint("Tangent", 3, 2, 4, 2))
sketch15.addConstraint(Sketcher.Constraint("Tangent", 4, 1, 5, 1))
sketch15.addConstraint(Sketcher.Constraint("Tangent", 5, 2, 6, 2))
sketch15.addConstraint(Sketcher.Constraint("Tangent", 6, 1, 7, 1))
sketch15.addConstraint(Sketcher.Constraint("Tangent", 7, 2, 0, 2))
sketch15.addConstraint(Sketcher.Constraint("Tangent", 8, 2, 9, 1))
sketch15.addConstraint(Sketcher.Constraint("Tangent", 9, 2, 10, 1))
sketch15.addConstraint(Sketcher.Constraint("Tangent", 10, 2, 11, 1))
sketch15.addConstraint(Sketcher.Constraint("Tangent", 11, 2, 12, 1))
sketch15.addConstraint(Sketcher.Constraint("Tangent", 12, 2, 13, 1))
sketch15.addConstraint(Sketcher.Constraint("Tangent", 13, 2, 14, 1))
sketch15.addConstraint(Sketcher.Constraint("Tangent", 14, 2, 15, 1))
sketch15.addConstraint(Sketcher.Constraint("Tangent", 15, 2, 8, 1))
sketch15.addConstraint(Sketcher.Constraint("Horizontal", 1))
sketch15.addConstraint(Sketcher.Constraint("Vertical", 3))
sketch15.addConstraint(Sketcher.Constraint("Horizontal", 5))
sketch15.addConstraint(Sketcher.Constraint("Vertical", 7))
sketch15.addConstraint(Sketcher.Constraint("Vertical", 9))
sketch15.addConstraint(Sketcher.Constraint("Horizontal", 11))
sketch15.addConstraint(Sketcher.Constraint("Vertical", 13))
sketch15.addConstraint(Sketcher.Constraint("Horizontal", 15))
sketch15.addConstraint(Sketcher.Constraint("Coincident", 8, 3, 0, 3))
sketch15.addConstraint(Sketcher.Constraint("Coincident", 10, 3, 6, 3))
sketch15.addConstraint(Sketcher.Constraint("Coincident", 12, 3, 4, 3))
sketch15.addConstraint(Sketcher.Constraint("Equal", 0, 2))
sketch15.addConstraint(Sketcher.Constraint("Equal", 2, 4))
sketch15.addConstraint(Sketcher.Constraint("Equal", 4, 6))
sketch15.addConstraint(Sketcher.Constraint("Equal", 12, 14))
sketch15.addConstraint(Sketcher.Constraint("Symmetric", 0, 3, 4, 3, -1, 1))
sketch15.addConstraint(Sketcher.Constraint("DistanceX", 7, 2, 8, 2, Q("0.04 in")))
sketch15.addConstraint(Sketcher.Constraint("Radius", 0, Q("0.125 in")))
sketch15.addConstraint(Sketcher.Constraint("DistanceX", 1, 1, 1, 2, Q("3.11 in")))
sketch15.addConstraint(Sketcher.Constraint("DistanceY", 3, 2, 3, 1, Q("4.91 in")))
pad3 = doc.addObject("PartDesign::Pad", "Pad002")
body.addObject(pad3)
pad3.Profile = sketch15
pad3.Length = Q("0.05 in")
pad3.Reversed = True

# Sketch on XZ plane
sketch16 = doc.addObject("Sketcher::SketchObject", "Sketch015")
body.addObject(sketch16)
sketch16.AttachmentSupport = (doc.XZ_Plane, [""])
sketch16.MapMode = "FlatFace"
sketch16.AttachmentOffset = App.Placement(App.Vector(0, 0, -0.195 * 25.4), App.Rotation())
add_polygon(sketch16, [(-11.9, 43.3), (-11.9, 58.5), (-1.8, 58.5), (-1.8, 54.1), (-7.5, 54.1), (-7.5, 47.8), (-1.8, 47.8), (-1.8, 43.3)])  # lines 0-7
sketch16.addConstraint(Sketcher.Constraint("Vertical", 0))
sketch16.addConstraint(Sketcher.Constraint("Horizontal", 1))
sketch16.addConstraint(Sketcher.Constraint("Vertical", 2))
sketch16.addConstraint(Sketcher.Constraint("Horizontal", 3))
sketch16.addConstraint(Sketcher.Constraint("Vertical", 4))
sketch16.addConstraint(Sketcher.Constraint("Horizontal", 5))
sketch16.addConstraint(Sketcher.Constraint("Vertical", 6))
sketch16.addConstraint(Sketcher.Constraint("Horizontal", 7))
sketch16.addConstraint(Sketcher.Constraint("Vertical", 2, 2, 5, 2))
sketch16.addConstraint(Sketcher.Constraint("Equal", 2, 6))
sketch16.addConstraint(Sketcher.Constraint("DistanceY", 2, 2, 2, 1, Q("0.175 in")))
sketch16.addConstraint(Sketcher.Constraint("DistanceX", 1, 1, 1, 2, Q("0.4 in")))
sketch16.addConstraint(Sketcher.Constraint("DistanceY", 0, 1, 0, 2, Q("0.6 in")))
sketch16.addConstraint(Sketcher.Constraint("DistanceX", 0, 2, 3, 2, Q("0.175 in")))
sketch16.addConstraint(Sketcher.Constraint("DistanceY", -1, 1, 2, 2, Q("2.13 in")))
sketch16.addConstraint(Sketcher.Constraint("DistanceX", 0, 2, -1, 1, 11.9295))
pad4 = doc.addObject("PartDesign::Pad", "Pad003")
body.addObject(pad4)
pad4.Profile = sketch16
pad4.Length = Q("0.546 in")
pad4.Reversed = True

# Sketch on XZ plane
sketch17 = doc.addObject("Sketcher::SketchObject", "Sketch016")
body.addObject(sketch17)
sketch17.AttachmentSupport = (doc.XZ_Plane, [""])
sketch17.MapMode = "FlatFace"
sketch17.addGeometry(Part.Circle(App.Vector(34.3, 0, 0), App.Vector(0, 0, 1), 1.9), False)
sketch17.addGeometry(Part.Circle(App.Vector(-34.3, 0, 0), App.Vector(0, 0, 1), 1.9), False)
sketch17.addConstraint(Sketcher.Constraint("Equal", 0, 1))
sketch17.addConstraint(Sketcher.Constraint("Symmetric", 0, 3, 1, 3, -1, 1))
sketch17.addConstraint(Sketcher.Constraint("PointOnObject", 0, 3, -1))
sketch17.addConstraint(Sketcher.Constraint("Diameter", 0, Q("0.15 in")))
sketch17.addConstraint(Sketcher.Constraint("DistanceX", 1, 3, 0, 3, Q("2.7 in")))
doc.recompute()
hole5 = doc.addObject("PartDesign::Hole", "Hole004")
body.addObject(hole5)
hole5.Profile = sketch17
hole5.ThreadType = "None"
hole5.Diameter = Q("0.15 in")
hole5.DepthType = "Dimension"
hole5.Depth = Q("0.195 in")
hole5.DrillPoint = "Flat"
hole5.HoleCutType = "Countersink"
hole5.HoleCutDiameter = Q("0.279 in")
hole5.HoleCutCountersinkAngle = 82
doc.recompute()

chamfer = doc.addObject("PartDesign::Chamfer", "Chamfer")
body.addObject(chamfer)
chamfer.Base = (hole5, edges_at(hole5, [
    (6.921, 0, 0),
    (-1.841, 0, 16.066),
    (-1.841, 0, -16.066),
    (-10.604, 0, 0),
]))
chamfer.ChamferType = "Distance and Angle"
chamfer.Size = Q("0.08 in")
chamfer.Angle = 20

doc.recompute()
